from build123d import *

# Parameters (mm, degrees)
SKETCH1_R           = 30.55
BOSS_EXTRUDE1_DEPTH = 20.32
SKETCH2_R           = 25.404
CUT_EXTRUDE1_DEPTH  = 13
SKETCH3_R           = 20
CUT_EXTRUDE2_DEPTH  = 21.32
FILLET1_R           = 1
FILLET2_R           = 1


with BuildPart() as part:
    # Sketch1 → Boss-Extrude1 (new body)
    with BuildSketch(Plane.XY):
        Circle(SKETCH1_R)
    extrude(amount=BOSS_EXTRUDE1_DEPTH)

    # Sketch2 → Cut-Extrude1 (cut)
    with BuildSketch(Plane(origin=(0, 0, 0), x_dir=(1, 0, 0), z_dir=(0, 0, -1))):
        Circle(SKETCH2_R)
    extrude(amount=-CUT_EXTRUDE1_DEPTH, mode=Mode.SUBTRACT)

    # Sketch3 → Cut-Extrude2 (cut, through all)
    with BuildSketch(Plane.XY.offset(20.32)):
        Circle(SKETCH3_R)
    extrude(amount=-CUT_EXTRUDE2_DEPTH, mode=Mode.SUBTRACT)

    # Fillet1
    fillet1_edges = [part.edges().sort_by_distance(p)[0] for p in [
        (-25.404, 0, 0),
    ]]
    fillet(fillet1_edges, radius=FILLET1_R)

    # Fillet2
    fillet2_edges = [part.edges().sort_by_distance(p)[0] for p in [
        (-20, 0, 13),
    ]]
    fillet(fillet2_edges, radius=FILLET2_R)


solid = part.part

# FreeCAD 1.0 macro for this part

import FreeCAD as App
import Part
import Sketcher
from FreeCAD import Vector


def edges_at(feature, points):
    """Names of the edges that pass closest to the given points."""
    edges = feature.Shape.Edges
    near = lambda p: min(range(len(edges)), key=lambda i: edges[i].distToShape(Part.Vertex(*p))[0])
    return sorted({f"Edge{near(p) + 1}" for p in points})

doc = App.newDocument("Part")
body = doc.addObject("PartDesign::Body", "Body")

sketch1 = body.newObject("Sketcher::SketchObject", "Sketch")
sketch1.AttachmentSupport = (doc.getObject("XY_Plane"), [""])
sketch1.MapMode = "FlatFace"
sketch1.addGeometry(Part.Circle(Vector(0, 0, 0), Vector(0, 0, 1), 31), False)
sketch1.addConstraint(Sketcher.Constraint("Coincident", 0, 3, -1, 1))
sketch1.addConstraint(Sketcher.Constraint("Diameter", 0, 61.1))
pad1 = body.newObject("PartDesign::Pad", "Pad")
pad1.Profile = sketch1
pad1.Length = 20.32

sketch2 = body.newObject("Sketcher::SketchObject", "Sketch001")
sketch2.AttachmentSupport = (doc.getObject("XY_Plane"), [""])
sketch2.MapMode = "FlatFace"
sketch2.addGeometry(Part.Circle(Vector(0, 0, 0), Vector(0, 0, 1), 25), False)
sketch2.addConstraint(Sketcher.Constraint("Coincident", 0, 3, -1, 1))
sketch2.addConstraint(Sketcher.Constraint("Diameter", 0, 50.808))
pocket1 = body.newObject("PartDesign::Pocket", "Pocket")
pocket1.Profile = sketch2
pocket1.Length = 13
pocket1.Reversed = True

sketch3 = body.newObject("Sketcher::SketchObject", "Sketch002")
sketch3.AttachmentSupport = (doc.getObject("XY_Plane"), [""])
sketch3.MapMode = "FlatFace"
sketch3.AttachmentOffset = App.Placement(Vector(0, 0, 20.32), App.Rotation())
sketch3.addGeometry(Part.Circle(Vector(0, 0, 0), Vector(0, 0, 1), 20), False)
sketch3.addConstraint(Sketcher.Constraint("Coincident", 0, 3, -1, 1))
sketch3.addConstraint(Sketcher.Constraint("Diameter", 0, 40.0))
pocket2 = body.newObject("PartDesign::Pocket", "Pocket001")
pocket2.Profile = sketch3
pocket2.Type = "ThroughAll"
doc.recompute()

fillet = body.newObject("PartDesign::Fillet", "Fillet")
fillet.Base = (pocket2, edges_at(pocket2, [(-25.404, 0, 0)]))
fillet.Radius = 1
doc.recompute()

fillet2 = body.newObject("PartDesign::Fillet", "Fillet001")
fillet2.Base = (fillet, edges_at(fillet, [(-20, 0, 13)]))
fillet2.Radius = 1

doc.recompute()
